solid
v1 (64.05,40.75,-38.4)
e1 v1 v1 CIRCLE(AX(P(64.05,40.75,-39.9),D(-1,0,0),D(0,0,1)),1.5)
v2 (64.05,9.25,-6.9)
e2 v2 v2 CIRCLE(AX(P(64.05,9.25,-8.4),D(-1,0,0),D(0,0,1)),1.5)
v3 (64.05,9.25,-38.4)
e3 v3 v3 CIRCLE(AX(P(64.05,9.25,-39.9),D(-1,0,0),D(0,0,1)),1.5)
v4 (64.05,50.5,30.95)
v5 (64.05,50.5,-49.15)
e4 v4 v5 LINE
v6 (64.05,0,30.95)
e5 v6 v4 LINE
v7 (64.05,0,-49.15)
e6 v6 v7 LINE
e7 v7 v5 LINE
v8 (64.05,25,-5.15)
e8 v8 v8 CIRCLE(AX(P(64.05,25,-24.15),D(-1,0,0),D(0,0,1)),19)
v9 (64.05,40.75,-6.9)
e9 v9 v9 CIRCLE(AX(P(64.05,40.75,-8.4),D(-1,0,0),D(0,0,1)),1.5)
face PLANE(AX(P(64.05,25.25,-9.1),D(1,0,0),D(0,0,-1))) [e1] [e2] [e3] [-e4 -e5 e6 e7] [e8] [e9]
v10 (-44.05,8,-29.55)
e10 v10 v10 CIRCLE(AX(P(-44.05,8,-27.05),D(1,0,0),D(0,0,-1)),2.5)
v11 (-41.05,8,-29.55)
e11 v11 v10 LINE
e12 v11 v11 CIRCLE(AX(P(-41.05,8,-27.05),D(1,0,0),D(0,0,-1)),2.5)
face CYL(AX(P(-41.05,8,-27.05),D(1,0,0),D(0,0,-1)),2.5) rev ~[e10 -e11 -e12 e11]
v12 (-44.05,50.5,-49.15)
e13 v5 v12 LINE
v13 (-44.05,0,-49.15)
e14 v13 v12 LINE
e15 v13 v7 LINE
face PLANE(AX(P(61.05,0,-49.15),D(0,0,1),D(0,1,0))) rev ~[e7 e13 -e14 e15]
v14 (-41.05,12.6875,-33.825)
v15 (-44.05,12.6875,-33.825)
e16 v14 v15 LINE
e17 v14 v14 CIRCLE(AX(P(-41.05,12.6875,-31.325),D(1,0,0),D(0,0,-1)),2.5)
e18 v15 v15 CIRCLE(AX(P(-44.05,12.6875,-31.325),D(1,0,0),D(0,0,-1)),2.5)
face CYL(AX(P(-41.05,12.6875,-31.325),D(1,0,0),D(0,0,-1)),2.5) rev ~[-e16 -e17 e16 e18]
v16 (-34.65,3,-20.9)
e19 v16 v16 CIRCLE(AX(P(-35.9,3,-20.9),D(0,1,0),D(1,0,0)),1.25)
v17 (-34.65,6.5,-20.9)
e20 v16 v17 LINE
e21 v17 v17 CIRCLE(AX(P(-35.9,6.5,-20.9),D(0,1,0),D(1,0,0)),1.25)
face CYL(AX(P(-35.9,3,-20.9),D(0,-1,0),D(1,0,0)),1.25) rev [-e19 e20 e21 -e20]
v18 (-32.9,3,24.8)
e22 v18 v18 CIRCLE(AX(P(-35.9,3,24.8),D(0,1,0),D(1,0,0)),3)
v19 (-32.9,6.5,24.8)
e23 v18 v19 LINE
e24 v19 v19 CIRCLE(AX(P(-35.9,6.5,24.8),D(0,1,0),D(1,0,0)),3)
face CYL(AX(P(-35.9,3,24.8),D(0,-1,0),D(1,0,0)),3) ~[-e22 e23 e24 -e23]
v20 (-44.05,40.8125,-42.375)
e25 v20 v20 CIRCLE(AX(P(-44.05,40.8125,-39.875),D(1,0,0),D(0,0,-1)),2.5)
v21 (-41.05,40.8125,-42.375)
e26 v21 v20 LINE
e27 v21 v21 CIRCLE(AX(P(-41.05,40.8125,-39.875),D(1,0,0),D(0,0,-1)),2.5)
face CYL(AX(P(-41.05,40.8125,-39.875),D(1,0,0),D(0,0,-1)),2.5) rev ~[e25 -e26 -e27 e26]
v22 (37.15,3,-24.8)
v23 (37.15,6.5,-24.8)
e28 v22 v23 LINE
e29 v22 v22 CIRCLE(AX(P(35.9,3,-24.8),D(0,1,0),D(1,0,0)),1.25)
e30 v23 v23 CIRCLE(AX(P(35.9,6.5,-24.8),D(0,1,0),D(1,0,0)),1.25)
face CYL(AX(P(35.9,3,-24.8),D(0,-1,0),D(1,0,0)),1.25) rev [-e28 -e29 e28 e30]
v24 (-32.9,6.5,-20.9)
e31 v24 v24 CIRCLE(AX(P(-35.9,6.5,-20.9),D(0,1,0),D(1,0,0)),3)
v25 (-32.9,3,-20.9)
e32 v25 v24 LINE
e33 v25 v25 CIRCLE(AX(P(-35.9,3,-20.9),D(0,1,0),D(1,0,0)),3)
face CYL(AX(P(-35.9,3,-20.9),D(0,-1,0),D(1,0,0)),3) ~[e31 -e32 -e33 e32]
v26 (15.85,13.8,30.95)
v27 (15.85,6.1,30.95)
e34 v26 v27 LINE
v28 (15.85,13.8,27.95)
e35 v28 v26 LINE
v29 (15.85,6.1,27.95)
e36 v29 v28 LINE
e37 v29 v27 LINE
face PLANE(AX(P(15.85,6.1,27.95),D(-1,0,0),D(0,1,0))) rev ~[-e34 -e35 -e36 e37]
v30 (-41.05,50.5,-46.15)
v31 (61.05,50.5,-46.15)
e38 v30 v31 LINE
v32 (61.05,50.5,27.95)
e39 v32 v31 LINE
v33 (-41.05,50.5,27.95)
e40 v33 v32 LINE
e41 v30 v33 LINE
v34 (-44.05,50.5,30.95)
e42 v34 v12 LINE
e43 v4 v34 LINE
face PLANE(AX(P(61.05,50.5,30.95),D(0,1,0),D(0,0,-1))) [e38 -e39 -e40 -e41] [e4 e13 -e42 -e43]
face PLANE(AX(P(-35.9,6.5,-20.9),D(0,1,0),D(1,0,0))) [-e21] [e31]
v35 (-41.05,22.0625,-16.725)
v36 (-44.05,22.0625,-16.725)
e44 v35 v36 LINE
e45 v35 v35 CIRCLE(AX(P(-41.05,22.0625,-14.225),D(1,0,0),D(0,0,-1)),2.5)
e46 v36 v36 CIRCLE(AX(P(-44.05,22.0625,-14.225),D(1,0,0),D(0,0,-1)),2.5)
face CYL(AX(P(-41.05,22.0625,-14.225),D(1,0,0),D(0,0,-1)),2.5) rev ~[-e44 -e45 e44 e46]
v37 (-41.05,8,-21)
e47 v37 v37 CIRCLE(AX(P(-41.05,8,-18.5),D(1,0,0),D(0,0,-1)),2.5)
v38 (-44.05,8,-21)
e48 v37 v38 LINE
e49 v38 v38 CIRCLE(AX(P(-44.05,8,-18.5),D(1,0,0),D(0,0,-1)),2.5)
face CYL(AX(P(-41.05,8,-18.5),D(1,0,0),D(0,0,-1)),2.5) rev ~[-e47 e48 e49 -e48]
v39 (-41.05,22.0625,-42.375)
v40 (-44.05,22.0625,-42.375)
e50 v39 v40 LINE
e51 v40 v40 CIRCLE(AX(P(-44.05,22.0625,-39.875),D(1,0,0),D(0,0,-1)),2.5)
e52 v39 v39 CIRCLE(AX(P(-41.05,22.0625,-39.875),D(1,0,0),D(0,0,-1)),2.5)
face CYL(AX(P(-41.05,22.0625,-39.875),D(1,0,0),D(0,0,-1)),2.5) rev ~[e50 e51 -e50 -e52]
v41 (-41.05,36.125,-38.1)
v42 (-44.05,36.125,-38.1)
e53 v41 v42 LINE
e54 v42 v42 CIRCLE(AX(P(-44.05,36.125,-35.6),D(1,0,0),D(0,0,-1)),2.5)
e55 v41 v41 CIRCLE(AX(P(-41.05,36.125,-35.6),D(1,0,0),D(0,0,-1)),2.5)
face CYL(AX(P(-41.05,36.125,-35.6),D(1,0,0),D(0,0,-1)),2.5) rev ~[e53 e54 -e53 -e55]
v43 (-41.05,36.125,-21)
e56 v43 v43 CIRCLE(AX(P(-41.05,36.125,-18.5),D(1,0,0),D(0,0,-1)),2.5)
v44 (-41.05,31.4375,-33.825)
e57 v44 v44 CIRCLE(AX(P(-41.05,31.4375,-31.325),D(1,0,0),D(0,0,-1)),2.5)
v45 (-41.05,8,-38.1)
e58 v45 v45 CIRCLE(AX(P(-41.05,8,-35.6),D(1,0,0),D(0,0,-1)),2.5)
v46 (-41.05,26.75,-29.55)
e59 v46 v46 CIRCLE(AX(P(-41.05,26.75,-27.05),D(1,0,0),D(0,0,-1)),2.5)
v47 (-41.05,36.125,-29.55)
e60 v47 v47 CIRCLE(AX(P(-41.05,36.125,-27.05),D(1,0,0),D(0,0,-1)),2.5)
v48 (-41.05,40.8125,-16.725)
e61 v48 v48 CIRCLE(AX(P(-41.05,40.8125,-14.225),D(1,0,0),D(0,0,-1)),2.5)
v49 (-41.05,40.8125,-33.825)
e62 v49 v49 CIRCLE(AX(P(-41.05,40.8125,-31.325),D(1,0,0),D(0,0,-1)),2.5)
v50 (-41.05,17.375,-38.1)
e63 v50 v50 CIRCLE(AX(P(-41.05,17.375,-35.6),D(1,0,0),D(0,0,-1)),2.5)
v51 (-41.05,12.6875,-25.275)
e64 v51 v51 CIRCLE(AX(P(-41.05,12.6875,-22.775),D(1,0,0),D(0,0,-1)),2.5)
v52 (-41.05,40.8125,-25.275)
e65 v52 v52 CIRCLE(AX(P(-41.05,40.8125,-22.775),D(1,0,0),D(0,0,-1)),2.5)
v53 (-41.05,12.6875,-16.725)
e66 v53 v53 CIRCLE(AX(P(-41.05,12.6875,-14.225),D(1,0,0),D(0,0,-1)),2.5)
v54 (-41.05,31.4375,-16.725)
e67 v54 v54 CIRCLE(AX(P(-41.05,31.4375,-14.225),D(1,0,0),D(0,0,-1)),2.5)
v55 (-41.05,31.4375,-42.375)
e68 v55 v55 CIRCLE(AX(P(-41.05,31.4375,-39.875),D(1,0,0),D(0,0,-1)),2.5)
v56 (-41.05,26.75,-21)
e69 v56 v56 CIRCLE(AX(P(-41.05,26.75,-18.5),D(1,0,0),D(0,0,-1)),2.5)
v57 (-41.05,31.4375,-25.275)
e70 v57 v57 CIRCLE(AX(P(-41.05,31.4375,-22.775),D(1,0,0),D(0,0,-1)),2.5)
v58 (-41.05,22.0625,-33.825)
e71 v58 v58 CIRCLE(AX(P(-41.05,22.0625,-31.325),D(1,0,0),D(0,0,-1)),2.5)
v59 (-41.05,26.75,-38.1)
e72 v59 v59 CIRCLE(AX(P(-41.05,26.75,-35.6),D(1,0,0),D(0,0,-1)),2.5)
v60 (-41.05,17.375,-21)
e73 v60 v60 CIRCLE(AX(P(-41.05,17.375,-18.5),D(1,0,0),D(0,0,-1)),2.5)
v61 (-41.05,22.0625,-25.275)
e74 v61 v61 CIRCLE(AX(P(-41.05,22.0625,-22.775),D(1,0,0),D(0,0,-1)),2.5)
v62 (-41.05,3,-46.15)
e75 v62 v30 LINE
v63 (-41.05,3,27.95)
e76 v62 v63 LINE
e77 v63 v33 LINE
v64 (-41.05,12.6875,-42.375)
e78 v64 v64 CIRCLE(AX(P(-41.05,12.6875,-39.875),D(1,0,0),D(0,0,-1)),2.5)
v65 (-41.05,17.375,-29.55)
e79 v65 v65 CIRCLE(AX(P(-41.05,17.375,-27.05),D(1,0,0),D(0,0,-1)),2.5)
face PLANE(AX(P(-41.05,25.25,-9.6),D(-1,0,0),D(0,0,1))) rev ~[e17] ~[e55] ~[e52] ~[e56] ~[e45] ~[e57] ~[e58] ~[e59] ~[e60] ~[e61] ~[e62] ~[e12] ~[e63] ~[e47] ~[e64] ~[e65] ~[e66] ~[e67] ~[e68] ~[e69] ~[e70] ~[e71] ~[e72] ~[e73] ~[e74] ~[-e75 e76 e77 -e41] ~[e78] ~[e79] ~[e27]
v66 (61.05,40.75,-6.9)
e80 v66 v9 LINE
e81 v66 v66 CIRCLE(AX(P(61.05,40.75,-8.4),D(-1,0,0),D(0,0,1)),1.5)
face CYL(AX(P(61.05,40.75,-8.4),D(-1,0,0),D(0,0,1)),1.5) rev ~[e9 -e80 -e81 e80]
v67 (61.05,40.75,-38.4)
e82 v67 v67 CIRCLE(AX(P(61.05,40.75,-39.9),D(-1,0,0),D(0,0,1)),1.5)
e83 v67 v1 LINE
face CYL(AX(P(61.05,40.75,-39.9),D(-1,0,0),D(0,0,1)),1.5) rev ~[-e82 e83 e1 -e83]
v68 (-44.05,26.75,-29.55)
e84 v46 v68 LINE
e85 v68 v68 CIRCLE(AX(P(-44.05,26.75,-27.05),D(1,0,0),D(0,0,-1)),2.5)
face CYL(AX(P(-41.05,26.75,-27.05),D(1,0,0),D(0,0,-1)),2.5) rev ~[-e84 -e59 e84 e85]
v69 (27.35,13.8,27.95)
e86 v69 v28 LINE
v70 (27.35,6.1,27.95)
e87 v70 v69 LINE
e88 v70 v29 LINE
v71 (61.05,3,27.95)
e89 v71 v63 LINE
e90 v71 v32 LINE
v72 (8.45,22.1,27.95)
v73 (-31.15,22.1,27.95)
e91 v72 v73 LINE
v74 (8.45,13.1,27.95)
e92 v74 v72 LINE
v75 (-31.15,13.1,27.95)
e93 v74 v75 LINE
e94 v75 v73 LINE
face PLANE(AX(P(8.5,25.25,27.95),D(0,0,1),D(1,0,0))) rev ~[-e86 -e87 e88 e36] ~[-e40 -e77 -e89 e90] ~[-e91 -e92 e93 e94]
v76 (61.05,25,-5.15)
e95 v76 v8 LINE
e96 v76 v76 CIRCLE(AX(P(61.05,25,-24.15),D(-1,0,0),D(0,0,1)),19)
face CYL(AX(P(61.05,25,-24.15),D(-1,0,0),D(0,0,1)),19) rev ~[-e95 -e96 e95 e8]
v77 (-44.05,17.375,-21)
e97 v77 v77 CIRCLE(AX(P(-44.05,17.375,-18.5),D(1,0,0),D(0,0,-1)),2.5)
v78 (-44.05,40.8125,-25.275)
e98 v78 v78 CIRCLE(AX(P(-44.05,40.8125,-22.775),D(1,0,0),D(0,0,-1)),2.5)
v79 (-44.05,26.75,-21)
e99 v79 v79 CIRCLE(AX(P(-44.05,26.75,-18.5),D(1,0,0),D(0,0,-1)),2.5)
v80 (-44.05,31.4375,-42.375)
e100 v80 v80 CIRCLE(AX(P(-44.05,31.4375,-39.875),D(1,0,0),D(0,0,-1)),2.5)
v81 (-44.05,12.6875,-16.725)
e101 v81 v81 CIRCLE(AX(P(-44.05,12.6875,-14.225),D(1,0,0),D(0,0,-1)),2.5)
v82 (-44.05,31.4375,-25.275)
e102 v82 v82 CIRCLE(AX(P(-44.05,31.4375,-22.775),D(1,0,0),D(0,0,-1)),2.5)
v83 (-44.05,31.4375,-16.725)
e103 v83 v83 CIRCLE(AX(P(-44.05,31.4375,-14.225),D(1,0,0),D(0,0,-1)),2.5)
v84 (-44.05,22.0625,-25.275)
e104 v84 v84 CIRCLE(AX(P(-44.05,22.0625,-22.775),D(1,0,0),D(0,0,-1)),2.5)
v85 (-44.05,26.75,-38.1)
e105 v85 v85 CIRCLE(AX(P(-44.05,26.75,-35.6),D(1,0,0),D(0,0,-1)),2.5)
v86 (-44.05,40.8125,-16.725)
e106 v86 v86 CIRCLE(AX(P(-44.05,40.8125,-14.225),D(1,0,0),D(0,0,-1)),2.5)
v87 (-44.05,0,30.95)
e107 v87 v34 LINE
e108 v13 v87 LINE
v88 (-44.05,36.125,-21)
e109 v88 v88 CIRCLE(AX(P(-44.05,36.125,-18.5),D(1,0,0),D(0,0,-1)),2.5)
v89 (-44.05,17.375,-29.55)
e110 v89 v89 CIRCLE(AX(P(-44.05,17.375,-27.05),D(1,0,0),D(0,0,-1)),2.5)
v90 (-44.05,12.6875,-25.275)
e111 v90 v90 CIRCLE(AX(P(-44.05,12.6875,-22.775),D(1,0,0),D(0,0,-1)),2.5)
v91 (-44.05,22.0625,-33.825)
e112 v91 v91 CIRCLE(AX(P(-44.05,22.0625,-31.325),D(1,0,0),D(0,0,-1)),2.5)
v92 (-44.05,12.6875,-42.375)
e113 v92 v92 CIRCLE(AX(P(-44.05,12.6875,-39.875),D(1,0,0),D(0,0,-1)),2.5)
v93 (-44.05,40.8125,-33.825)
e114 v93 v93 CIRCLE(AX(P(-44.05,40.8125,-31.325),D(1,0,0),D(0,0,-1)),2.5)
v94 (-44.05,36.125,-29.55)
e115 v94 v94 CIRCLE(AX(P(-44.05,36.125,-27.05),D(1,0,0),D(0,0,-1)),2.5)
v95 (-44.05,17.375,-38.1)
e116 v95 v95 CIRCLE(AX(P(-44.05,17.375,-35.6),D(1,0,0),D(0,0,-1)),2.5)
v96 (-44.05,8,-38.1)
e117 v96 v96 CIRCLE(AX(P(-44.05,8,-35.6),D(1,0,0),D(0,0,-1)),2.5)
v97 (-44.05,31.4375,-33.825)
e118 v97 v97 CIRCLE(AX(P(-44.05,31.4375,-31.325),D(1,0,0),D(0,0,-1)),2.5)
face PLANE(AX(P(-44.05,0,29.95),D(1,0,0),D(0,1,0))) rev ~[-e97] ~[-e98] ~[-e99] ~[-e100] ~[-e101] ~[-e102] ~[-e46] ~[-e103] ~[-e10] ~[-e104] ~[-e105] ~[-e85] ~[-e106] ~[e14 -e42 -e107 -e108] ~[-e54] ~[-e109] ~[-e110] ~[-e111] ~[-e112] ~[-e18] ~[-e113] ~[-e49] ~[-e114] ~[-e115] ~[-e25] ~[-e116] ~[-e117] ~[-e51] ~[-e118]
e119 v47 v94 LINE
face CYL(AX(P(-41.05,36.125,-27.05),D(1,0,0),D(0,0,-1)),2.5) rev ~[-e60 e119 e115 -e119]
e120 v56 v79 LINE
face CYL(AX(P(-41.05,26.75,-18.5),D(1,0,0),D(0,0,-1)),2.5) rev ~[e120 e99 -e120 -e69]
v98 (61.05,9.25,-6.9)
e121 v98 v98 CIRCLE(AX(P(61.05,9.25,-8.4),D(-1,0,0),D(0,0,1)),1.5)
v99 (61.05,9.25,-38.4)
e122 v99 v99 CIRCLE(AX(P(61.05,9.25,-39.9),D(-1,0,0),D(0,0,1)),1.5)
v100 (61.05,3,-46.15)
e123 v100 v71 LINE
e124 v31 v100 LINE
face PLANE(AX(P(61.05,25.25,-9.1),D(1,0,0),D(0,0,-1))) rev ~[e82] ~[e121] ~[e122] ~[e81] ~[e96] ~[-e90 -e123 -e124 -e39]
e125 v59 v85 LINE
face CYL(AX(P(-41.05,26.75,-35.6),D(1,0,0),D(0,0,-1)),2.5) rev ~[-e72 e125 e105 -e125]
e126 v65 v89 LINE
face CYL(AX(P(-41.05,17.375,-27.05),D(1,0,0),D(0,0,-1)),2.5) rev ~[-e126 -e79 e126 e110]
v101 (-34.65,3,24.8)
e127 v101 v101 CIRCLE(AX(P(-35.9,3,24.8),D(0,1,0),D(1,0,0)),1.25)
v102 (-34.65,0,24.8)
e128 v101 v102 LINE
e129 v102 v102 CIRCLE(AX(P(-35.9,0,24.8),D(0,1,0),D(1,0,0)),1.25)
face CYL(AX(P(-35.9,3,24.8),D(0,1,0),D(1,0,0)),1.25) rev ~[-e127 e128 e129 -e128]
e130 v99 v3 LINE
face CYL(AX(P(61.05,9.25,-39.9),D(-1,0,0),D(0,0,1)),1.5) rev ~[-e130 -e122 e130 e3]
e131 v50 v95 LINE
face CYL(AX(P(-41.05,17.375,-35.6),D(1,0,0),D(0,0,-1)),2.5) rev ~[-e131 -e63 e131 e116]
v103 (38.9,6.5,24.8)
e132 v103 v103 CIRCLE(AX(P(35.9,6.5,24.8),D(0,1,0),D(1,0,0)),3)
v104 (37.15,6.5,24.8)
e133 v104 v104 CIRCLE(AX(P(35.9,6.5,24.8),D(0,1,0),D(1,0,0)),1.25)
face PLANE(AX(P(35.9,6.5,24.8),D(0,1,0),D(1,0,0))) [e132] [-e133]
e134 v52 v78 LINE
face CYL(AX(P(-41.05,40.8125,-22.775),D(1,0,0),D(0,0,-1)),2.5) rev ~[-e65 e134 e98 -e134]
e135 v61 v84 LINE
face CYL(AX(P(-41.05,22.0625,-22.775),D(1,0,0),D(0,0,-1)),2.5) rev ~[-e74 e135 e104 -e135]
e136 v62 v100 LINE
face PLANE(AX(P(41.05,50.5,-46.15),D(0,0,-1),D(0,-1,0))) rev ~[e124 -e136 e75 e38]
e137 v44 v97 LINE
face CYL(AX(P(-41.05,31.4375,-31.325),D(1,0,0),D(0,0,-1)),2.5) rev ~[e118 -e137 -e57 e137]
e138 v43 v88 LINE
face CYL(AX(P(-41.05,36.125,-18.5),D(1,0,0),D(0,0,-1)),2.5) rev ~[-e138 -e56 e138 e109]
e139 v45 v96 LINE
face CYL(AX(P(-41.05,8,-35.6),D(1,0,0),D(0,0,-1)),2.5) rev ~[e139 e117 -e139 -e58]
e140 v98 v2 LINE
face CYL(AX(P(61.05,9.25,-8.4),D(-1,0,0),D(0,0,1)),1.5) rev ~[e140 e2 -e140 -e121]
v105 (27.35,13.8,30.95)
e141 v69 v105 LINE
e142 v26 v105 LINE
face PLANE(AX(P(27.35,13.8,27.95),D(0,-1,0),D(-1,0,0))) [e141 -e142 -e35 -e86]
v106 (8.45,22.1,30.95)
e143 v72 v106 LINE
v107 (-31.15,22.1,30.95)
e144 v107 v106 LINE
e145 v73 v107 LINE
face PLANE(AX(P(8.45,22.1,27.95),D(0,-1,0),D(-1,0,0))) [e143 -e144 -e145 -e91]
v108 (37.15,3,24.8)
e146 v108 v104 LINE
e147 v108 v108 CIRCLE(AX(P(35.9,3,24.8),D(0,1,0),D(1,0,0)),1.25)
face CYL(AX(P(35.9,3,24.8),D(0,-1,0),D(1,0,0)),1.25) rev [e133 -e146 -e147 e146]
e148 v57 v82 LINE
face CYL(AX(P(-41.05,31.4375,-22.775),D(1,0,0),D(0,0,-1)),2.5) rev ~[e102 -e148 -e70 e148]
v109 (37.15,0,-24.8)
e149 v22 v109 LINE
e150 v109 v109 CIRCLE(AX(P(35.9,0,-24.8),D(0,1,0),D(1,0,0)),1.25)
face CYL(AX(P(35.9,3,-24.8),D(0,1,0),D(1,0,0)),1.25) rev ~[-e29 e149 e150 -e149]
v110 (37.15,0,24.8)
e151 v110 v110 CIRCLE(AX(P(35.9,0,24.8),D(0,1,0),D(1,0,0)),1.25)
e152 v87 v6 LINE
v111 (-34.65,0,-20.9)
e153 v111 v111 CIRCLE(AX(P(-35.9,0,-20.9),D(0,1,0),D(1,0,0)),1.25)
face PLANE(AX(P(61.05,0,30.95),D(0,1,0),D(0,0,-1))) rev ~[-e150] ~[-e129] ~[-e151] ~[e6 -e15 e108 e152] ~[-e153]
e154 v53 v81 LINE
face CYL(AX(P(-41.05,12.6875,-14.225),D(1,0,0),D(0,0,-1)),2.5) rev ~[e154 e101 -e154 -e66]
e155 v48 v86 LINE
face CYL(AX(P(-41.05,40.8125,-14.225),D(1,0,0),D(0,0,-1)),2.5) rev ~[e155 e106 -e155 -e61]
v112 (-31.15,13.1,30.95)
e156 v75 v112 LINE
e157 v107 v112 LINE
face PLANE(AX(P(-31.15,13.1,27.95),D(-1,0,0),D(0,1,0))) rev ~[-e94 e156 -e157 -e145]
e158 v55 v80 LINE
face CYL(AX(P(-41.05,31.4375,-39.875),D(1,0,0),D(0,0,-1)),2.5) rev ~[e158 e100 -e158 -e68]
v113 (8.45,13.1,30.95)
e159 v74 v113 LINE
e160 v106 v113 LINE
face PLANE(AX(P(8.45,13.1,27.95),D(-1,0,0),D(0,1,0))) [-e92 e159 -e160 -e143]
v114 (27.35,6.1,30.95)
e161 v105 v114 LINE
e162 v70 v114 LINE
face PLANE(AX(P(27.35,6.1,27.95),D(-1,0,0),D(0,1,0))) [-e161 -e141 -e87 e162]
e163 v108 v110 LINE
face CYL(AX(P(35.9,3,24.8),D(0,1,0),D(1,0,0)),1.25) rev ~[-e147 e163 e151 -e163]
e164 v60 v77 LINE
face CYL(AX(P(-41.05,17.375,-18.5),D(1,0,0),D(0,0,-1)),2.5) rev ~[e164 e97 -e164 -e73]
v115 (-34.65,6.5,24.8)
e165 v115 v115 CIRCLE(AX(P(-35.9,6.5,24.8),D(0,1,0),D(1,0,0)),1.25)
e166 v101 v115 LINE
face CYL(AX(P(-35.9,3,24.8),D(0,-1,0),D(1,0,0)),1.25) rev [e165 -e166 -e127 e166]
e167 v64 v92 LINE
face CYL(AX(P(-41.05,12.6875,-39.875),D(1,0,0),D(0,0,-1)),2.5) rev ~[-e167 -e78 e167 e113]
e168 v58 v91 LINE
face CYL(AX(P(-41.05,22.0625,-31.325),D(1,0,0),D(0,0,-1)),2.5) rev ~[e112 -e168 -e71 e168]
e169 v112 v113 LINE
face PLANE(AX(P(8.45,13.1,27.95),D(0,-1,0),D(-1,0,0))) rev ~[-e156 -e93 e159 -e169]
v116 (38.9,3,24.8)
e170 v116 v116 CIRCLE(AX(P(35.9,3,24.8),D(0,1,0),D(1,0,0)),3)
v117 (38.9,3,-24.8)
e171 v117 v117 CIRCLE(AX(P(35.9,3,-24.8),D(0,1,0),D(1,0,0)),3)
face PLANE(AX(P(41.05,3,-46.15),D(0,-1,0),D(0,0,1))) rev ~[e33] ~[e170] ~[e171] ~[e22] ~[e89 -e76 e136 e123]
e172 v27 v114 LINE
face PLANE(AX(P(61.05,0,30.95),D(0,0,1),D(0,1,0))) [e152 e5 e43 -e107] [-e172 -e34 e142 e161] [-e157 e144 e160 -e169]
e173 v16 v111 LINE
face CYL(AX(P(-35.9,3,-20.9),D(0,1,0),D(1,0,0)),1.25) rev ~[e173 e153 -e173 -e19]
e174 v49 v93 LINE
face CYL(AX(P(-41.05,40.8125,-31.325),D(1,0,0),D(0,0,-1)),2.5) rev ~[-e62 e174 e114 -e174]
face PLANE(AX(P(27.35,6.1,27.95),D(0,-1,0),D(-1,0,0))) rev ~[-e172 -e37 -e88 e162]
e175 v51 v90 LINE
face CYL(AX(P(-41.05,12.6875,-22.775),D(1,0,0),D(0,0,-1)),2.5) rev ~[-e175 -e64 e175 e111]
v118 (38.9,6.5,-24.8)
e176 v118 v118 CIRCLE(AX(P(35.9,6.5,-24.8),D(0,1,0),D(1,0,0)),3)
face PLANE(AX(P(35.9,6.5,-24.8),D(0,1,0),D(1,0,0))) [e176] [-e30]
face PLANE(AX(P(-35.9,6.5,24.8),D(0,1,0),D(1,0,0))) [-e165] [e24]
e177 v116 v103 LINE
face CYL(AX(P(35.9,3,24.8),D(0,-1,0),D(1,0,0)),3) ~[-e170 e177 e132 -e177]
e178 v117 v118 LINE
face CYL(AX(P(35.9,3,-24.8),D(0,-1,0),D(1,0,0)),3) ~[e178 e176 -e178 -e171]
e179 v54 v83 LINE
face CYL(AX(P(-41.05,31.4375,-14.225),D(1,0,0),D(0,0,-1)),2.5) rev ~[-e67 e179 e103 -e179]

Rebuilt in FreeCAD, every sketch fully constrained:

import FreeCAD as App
import Part
import Sketcher


def add_polygon(sketch, points):
    """Adds a closed chain of lines whose ends are joined by coincident constraints."""
    first, n = sketch.GeometryCount, len(points)
    for a, b in zip(points, points[1:] + points[:1]):
        sketch.addGeometry(Part.LineSegment(App.Vector(*a, 0), App.Vector(*b, 0)), False)
    for i in range(n):
        sketch.addConstraint(Sketcher.Constraint("Coincident", first + i, 2, first + (i + 1) % n, 1))

doc = App.newDocument("Part")
body = doc.addObject("PartDesign::Body", "Body")

# Sketch on XZ plane
sketch1 = body.newObject("Sketcher::SketchObject", "Sketch")
sketch1.AttachmentSupport = (doc.getObject("XZ_Plane"), [""])
sketch1.MapMode = "FlatFace"
add_polygon(sketch1, [(-39, -28), (-39, 28), (39, 28), (39, -28)])  # lines 0-3
sketch1.addConstraint(Sketcher.Constraint("Vertical", 0))
sketch1.addConstraint(Sketcher.Constraint("Horizontal", 1))
sketch1.addConstraint(Sketcher.Constraint("Vertical", 2))
sketch1.addConstraint(Sketcher.Constraint("Horizontal", 3))
sketch1.addConstraint(Sketcher.Constraint("Symmetric", 0, 2, 2, 2, -1, 1))
sketch1.addConstraint(Sketcher.Constraint("DistanceX", 1, 1, 1, 2, 78.1))
sketch1.addConstraint(Sketcher.Constraint("DistanceY", 0, 1, 0, 2, 55.9))
pad1 = body.newObject("PartDesign::Pad", "Pad")
pad1.Profile = sketch1
pad1.Length = 3
pad1.Reversed = True

# Sketch on XZ plane
sketch2 = body.newObject("Sketcher::SketchObject", "Sketch001")
sketch2.AttachmentSupport = (doc.getObject("XZ_Plane"), [""])
sketch2.MapMode = "FlatFace"
sketch2.AttachmentOffset = App.Placement(App.Vector(0, 0, -3), App.Rotation())
sketch2.addGeometry(Part.Circle(App.Vector(-35.9, -20.9, 0), App.Vector(0, 0, 1), 1.2), False)
sketch2.addGeometry(Part.Circle(App.Vector(-35.9, 24.8, 0), App.Vector(0, 0, 1), 1.2), False)
sketch2.addGeometry(Part.Circle(App.Vector(35.9, 24.8, 0), App.Vector(0, 0, 1), 1.2), False)
sketch2.addGeometry(Part.Circle(App.Vector(35.9, -24.8, 0), App.Vector(0, 0, 1), 1.2), False)
sketch2.addConstraint(Sketcher.Constraint("Equal", 0, 1))
sketch2.addConstraint(Sketcher.Constraint("Equal", 1, 2))
sketch2.addConstraint(Sketcher.Constraint("Equal", 2, 3))
sketch2.addConstraint(Sketcher.Constraint("Symmetric", 1, 3, 3, 3, -1, 1))
sketch2.addConstraint(Sketcher.Constraint("Symmetric", 1, 3, 2, 3, -2))
sketch2.addConstraint(Sketcher.Constraint("Vertical", 0, 3, 1, 3))
sketch2.addConstraint(Sketcher.Constraint("Diameter", 0, 2.5))
sketch2.addConstraint(Sketcher.Constraint("DistanceX", 0, 3, -1, 1, 35.9))
sketch2.addConstraint(Sketcher.Constraint("DistanceY", 0, 3, -1, 1, 20.9))
sketch2.addConstraint(Sketcher.Constraint("DistanceY", -1, 1, 1, 3, 24.8))
pocket1 = body.newObject("PartDesign::Pocket", "Pocket")
pocket1.Profile = sketch2
pocket1.Length = 68
pocket1.Reversed = True

# Sketch on XZ plane
sketch3 = body.newObject("Sketcher::SketchObject", "Sketch002")
sketch3.AttachmentSupport = (doc.getObject("XZ_Plane"), [""])
sketch3.MapMode = "FlatFace"
add_polygon(sketch3, [(41, -30), (41, 30), (-41, 30), (-41, -30)])  # lines 0-3
add_polygon(sketch3, [(-39, 28), (39, 28), (39, -28), (-39, -28)])  # lines 4-7
sketch3.addConstraint(Sketcher.Constraint("Vertical", 0))
sketch3.addConstraint(Sketcher.Constraint("Horizontal", 1))
sketch3.addConstraint(Sketcher.Constraint("Vertical", 2))
sketch3.addConstraint(Sketcher.Constraint("Horizontal", 3))
sketch3.addConstraint(Sketcher.Constraint("Horizontal", 4))
sketch3.addConstraint(Sketcher.Constraint("Vertical", 5))
sketch3.addConstraint(Sketcher.Constraint("Horizontal", 6))
sketch3.addConstraint(Sketcher.Constraint("Vertical", 7))
sketch3.addConstraint(Sketcher.Constraint("Symmetric", 0, 2, 2, 2, -1, 1))
sketch3.addConstraint(Sketcher.Constraint("Symmetric", 4, 2, 6, 2, -1, 1))
sketch3.addConstraint(Sketcher.Constraint("DistanceX", 1, 2, 1, 1, 82.1))
sketch3.addConstraint(Sketcher.Constraint("DistanceX", 4, 1, 4, 2, 78.1))
sketch3.addConstraint(Sketcher.Constraint("DistanceY", 0, 1, 0, 2, 59.9))
sketch3.addConstraint(Sketcher.Constraint("DistanceY", 5, 2, 5, 1, 55.9))
pad2 = body.newObject("PartDesign::Pad", "Pad001")
pad2.Profile = sketch3
pad2.Length = 3
pad2.Reversed = True

# Sketch on XZ plane
sketch4 = body.newObject("Sketcher::SketchObject", "Sketch003")
sketch4.AttachmentSupport = (doc.getObject("XZ_Plane"), [""])
sketch4.MapMode = "FlatFace"
sketch4.AttachmentOffset = App.Placement(App.Vector(0, 0, -3), App.Rotation())
sketch4.addGeometry(Part.Circle(App.Vector(-35.9, -20.9, 0), App.Vector(0, 0, 1), 3), False)
sketch4.addGeometry(Part.Circle(App.Vector(-35.9, -20.9, 0), App.Vector(0, 0, 1), 1.2), False)
sketch4.addGeometry(Part.Circle(App.Vector(35.9, -24.8, 0), App.Vector(0, 0, 1), 3), False)
sketch4.addGeometry(Part.Circle(App.Vector(35.9, -24.8, 0), App.Vector(0, 0, 1), 1.2), False)
sketch4.addGeometry(Part.Circle(App.Vector(35.9, 24.8, 0), App.Vector(0, 0, 1), 3), False)
sketch4.addGeometry(Part.Circle(App.Vector(35.9, 24.8, 0), App.Vector(0, 0, 1), 1.2), False)
sketch4.addGeometry(Part.Circle(App.Vector(-35.9, 24.8, 0), App.Vector(0, 0, 1), 3), False)
sketch4.addGeometry(Part.Circle(App.Vector(-35.9, 24.8, 0), App.Vector(0, 0, 1), 1.2), False)
sketch4.addConstraint(Sketcher.Constraint("Coincident", 1, 3, 0, 3))
sketch4.addConstraint(Sketcher.Constraint("Coincident", 3, 3, 2, 3))
sketch4.addConstraint(Sketcher.Constraint("Coincident", 5, 3, 4, 3))
sketch4.addConstraint(Sketcher.Constraint("Coincident", 7, 3, 6, 3))
sketch4.addConstraint(Sketcher.Constraint("Equal", 0, 2))
sketch4.addConstraint(Sketcher.Constraint("Equal", 1, 3))
sketch4.addConstraint(Sketcher.Constraint("Equal", 2, 4))
sketch4.addConstraint(Sketcher.Constraint("Equal", 3, 5))
sketch4.addConstraint(Sketcher.Constraint("Equal", 4, 6))
sketch4.addConstraint(Sketcher.Constraint("Equal", 5, 7))
sketch4.addConstraint(Sketcher.Constraint("Symmetric", 2, 3, 6, 3, -1, 1))
sketch4.addConstraint(Sketcher.Constraint("Symmetric", 4, 3, 6, 3, -2))
sketch4.addConstraint(Sketcher.Constraint("Vertical", 1, 3, 6, 3))
sketch4.addConstraint(Sketcher.Constraint("Diameter", 0, 6.0))
sketch4.addConstraint(Sketcher.Constraint("Diameter", 1, 2.5))
sketch4.addConstraint(Sketcher.Constraint("DistanceX", 0, 3, -1, 1, 35.9))
sketch4.addConstraint(Sketcher.Constraint("DistanceY", 0, 3, -1, 1, 20.9))
sketch4.addConstraint(Sketcher.Constraint("DistanceY", 2, 3, -1, 1, 24.8))
pad3 = body.newObject("PartDesign::Pad", "Pad002")
pad3.Profile = sketch4
pad3.Length = 3.5
pad3.Reversed = True

# Sketch on XZ plane
sketch5 = body.newObject("Sketcher::SketchObject", "Sketch004")
sketch5.AttachmentSupport = (doc.getObject("XZ_Plane"), [""])
sketch5.MapMode = "FlatFace"
add_polygon(sketch5, [(41, -46), (41, -30), (-41, -30), (-41, -46)])  # lines 0-3
sketch5.addConstraint(Sketcher.Constraint("Vertical", 0))
sketch5.addConstraint(Sketcher.Constraint("Horizontal", 1))
sketch5.addConstraint(Sketcher.Constraint("Vertical", 2))
sketch5.addConstraint(Sketcher.Constraint("Horizontal", 3))
sketch5.addConstraint(Sketcher.Constraint("DistanceX", 1, 2, 1, 1, 82.1))
sketch5.addConstraint(Sketcher.Constraint("DistanceY", 0, 1, 0, 2, 16.2))
sketch5.addConstraint(Sketcher.Constraint("DistanceX", -1, 1, 0, 2, 41.05))
sketch5.addConstraint(Sketcher.Constraint("DistanceY", 0, 2, -1, 1, 29.95))
pad4 = body.newObject("PartDesign::Pad", "Pad003")
pad4.Profile = sketch5
pad4.Length = 3
pad4.Reversed = True

# Sketch on XY plane
sketch6 = body.newObject("Sketcher::SketchObject", "Sketch005")
sketch6.AttachmentSupport = (doc.getObject("XY_Plane"), [""])
sketch6.MapMode = "FlatFace"
sketch6.AttachmentOffset = App.Placement(App.Vector(0, 0, -46.15), App.Rotation())
add_polygon(sketch6, [(41, 50), (41, 0), (-41, 0), (-41, 50)])  # lines 0-3
sketch6.addConstraint(Sketcher.Constraint("Vertical", 0))
sketch6.addConstraint(Sketcher.Constraint("Horizontal", 1))
sketch6.addConstraint(Sketcher.Constraint("Vertical", 2))
sketch6.addConstraint(Sketcher.Constraint("Horizontal", 3))
sketch6.addConstraint(Sketcher.Constraint("Symmetric", 0, 2, 1, 2, -1, 1))
sketch6.addConstraint(Sketcher.Constraint("DistanceX", 1, 2, 1, 1, 82.1))
sketch6.addConstraint(Sketcher.Constraint("DistanceY", 0, 2, 0, 1, 50.5))
pad5 = body.newObject("PartDesign::Pad", "Pad004")
pad5.Profile = sketch6
pad5.Length = 3
pad5.Reversed = True

# Sketch on YZ plane
sketch7 = body.newObject("Sketcher::SketchObject", "Sketch006")
sketch7.AttachmentSupport = (doc.getObject("YZ_Plane"), [""])
sketch7.MapMode = "FlatFace"
sketch7.AttachmentOffset = App.Placement(App.Vector(0, 0, 41.05), App.Rotation())
add_polygon(sketch7, [(50.5, -49.1), (50.5, -46.1), (3, -46.1), (3, 29.9), (0, 29.9), (0, -49.1)])  # lines 0-5
sketch7.addConstraint(Sketcher.Constraint("Vertical", 0))
sketch7.addConstraint(Sketcher.Constraint("Horizontal", 1))
sketch7.addConstraint(Sketcher.Constraint("Vertical", 2))
sketch7.addConstraint(Sketcher.Constraint("Horizontal", 3))
sketch7.addConstraint(Sketcher.Constraint("Vertical", 4))
sketch7.addConstraint(Sketcher.Constraint("Horizontal", 5))
sketch7.addConstraint(Sketcher.Constraint("PointOnObject", 3, 2, -2))
sketch7.addConstraint(Sketcher.Constraint("Equal", 3, 0))
sketch7.addConstraint(Sketcher.Constraint("DistanceX", 3, 2, 3, 1, 3.0))
sketch7.addConstraint(Sketcher.Constraint("DistanceX", 1, 2, 1, 1, 47.5))
sketch7.addConstraint(Sketcher.Constraint("DistanceY", 2, 1, 2, 2, 76.1))
sketch7.addConstraint(Sketcher.Constraint("DistanceY", 0, 2, -1, 1, 46.15))
pad6 = body.newObject("PartDesign::Pad", "Pad005")
pad6.Profile = sketch7
pad6.Length = 20

# Sketch on YZ plane
sketch8 = body.newObject("Sketcher::SketchObject", "Sketch007")
sketch8.AttachmentSupport = (doc.getObject("YZ_Plane"), [""])
sketch8.MapMode = "FlatFace"
sketch8.AttachmentOffset = App.Placement(App.Vector(0, 0, -41.05), App.Rotation())
add_polygon(sketch8, [(50, -49), (0, -49), (0, 30), (50, 30)])  # lines 0-3
sketch8.addConstraint(Sketcher.Constraint("Horizontal", 0))
sketch8.addConstraint(Sketcher.Constraint("Vertical", 1))
sketch8.addConstraint(Sketcher.Constraint("Horizontal", 2))
sketch8.addConstraint(Sketcher.Constraint("Vertical", 3))
sketch8.addConstraint(Sketcher.Constraint("PointOnObject", 0, 2, -2))
sketch8.addConstraint(Sketcher.Constraint("DistanceX", 0, 2, 0, 1, 50.5))
sketch8.addConstraint(Sketcher.Constraint("DistanceY", 1, 1, 1, 2, 79.1))
sketch8.addConstraint(Sketcher.Constraint("DistanceY", 0, 2, -1, 1, 49.15))
pad7 = body.newObject("PartDesign::Pad", "Pad006")
pad7.Profile = sketch8
pad7.Length = 3
pad7.Reversed = True

# Sketch on XY plane
sketch9 = body.newObject("Sketcher::SketchObject", "Sketch008")
sketch9.AttachmentSupport = (doc.getObject("XY_Plane"), [""])
sketch9.MapMode = "FlatFace"
sketch9.AttachmentOffset = App.Placement(App.Vector(0, 0, 29.95), App.Rotation())
add_polygon(sketch9, [(-44, 50), (-44, 0), (61, 0), (61, 50)])  # lines 0-3
sketch9.addConstraint(Sketcher.Constraint("Vertical", 0))
sketch9.addConstraint(Sketcher.Constraint("Horizontal", 1))
sketch9.addConstraint(Sketcher.Constraint("Vertical", 2))
sketch9.addConstraint(Sketcher.Constraint("Horizontal", 3))
sketch9.addConstraint(Sketcher.Constraint("PointOnObject", 0, 2, -1))
sketch9.addConstraint(Sketcher.Constraint("DistanceX", 1, 1, 1, 2, 105.1))
sketch9.addConstraint(Sketcher.Constraint("DistanceY", 0, 2, 0, 1, 50.5))
sketch9.addConstraint(Sketcher.Constraint("DistanceX", 0, 2, -1, 1, 44.05))
pad8 = body.newObject("PartDesign::Pad", "Pad007")
pad8.Profile = sketch9
pad8.Type = "TwoLengths"
pad8.Length = 1
pad8.Length2 = 2

# Sketch on XY plane
sketch10 = body.newObject("Sketcher::SketchObject", "Sketch009")
sketch10.AttachmentSupport = (doc.getObject("XY_Plane"), [""])
sketch10.MapMode = "FlatFace"
sketch10.AttachmentOffset = App.Placement(App.Vector(0, 0, 27.95), App.Rotation())
add_polygon(sketch10, [(27, 14), (27, 6), (16, 6), (16, 14)])  # lines 0-3
add_polygon(sketch10, [(8, 22), (8, 13), (-31, 13), (-31, 22)])  # lines 4-7
sketch10.addConstraint(Sketcher.Constraint("Vertical", 0))
sketch10.addConstraint(Sketcher.Constraint("Horizontal", 1))
sketch10.addConstraint(Sketcher.Constraint("Vertical", 2))
sketch10.addConstraint(Sketcher.Constraint("Horizontal", 3))
sketch10.addConstraint(Sketcher.Constraint("Vertical", 4))
sketch10.addConstraint(Sketcher.Constraint("Horizontal", 5))
sketch10.addConstraint(Sketcher.Constraint("Vertical", 6))
sketch10.addConstraint(Sketcher.Constraint("Horizontal", 7))
sketch10.addConstraint(Sketcher.Constraint("DistanceY", 4, 2, 4, 1, 9.0))
sketch10.addConstraint(Sketcher.Constraint("DistanceX", 1, 2, 1, 1, 11.5))
sketch10.addConstraint(Sketcher.Constraint("DistanceX", 5, 2, 5, 1, 39.6))
sketch10.addConstraint(Sketcher.Constraint("DistanceY", 0, 2, 0, 1, 7.7))
sketch10.addConstraint(Sketcher.Constraint("DistanceY", 1, 2, 4, 2, 7.0))
sketch10.addConstraint(Sketcher.Constraint("DistanceX", 5, 2, 2, 2, 47.0))
sketch10.addConstraint(Sketcher.Constraint("DistanceY", -1, 1, 0, 2, 6.1))
sketch10.addConstraint(Sketcher.Constraint("DistanceX", -1, 1, 0, 2, 27.35))
pocket2 = body.newObject("PartDesign::Pocket", "Pocket001")
pocket2.Profile = sketch10
pocket2.Length = 9
pocket2.Reversed = True

# Sketch on YZ plane
sketch11 = body.newObject("Sketcher::SketchObject", "Sketch010")
sketch11.AttachmentSupport = (doc.getObject("YZ_Plane"), [""])
sketch11.MapMode = "FlatFace"
sketch11.AttachmentOffset = App.Placement(App.Vector(0, 0, 61.05), App.Rotation())
add_polygon(sketch11, [(50, 31), (0, 31), (0, -49), (50, -49)])  # lines 0-3
sketch11.addConstraint(Sketcher.Constraint("Horizontal", 0))
sketch11.addConstraint(Sketcher.Constraint("Vertical", 1))
sketch11.addConstraint(Sketcher.Constraint("Horizontal", 2))
sketch11.addConstraint(Sketcher.Constraint("Vertical", 3))
sketch11.addConstraint(Sketcher.Constraint("PointOnObject", 0, 2, -2))
sketch11.addConstraint(Sketcher.Constraint("DistanceX", 0, 2, 0, 1, 50.5))
sketch11.addConstraint(Sketcher.Constraint("DistanceY", 1, 2, 1, 1, 80.1))
sketch11.addConstraint(Sketcher.Constraint("DistanceY", -1, 1, 0, 2, 30.95))
pad9 = body.newObject("PartDesign::Pad", "Pad008")
pad9.Profile = sketch11
pad9.Length = 3

# Sketch on YZ plane
sketch12 = body.newObject("Sketcher::SketchObject", "Sketch011")
sketch12.AttachmentSupport = (doc.getObject("YZ_Plane"), [""])
sketch12.MapMode = "FlatFace"
sketch12.AttachmentOffset = App.Placement(App.Vector(0, 0, 61.05), App.Rotation())
sketch12.addGeometry(Part.Circle(App.Vector(25, -24.1, 0), App.Vector(0, 0, 1), 19), False)
sketch12.addGeometry(Part.Circle(App.Vector(40.8, -8.4, 0), App.Vector(0, 0, 1), 1.5), False)
sketch12.addGeometry(Part.Circle(App.Vector(40.8, -39.9, 0), App.Vector(0, 0, 1), 1.5), False)
sketch12.addGeometry(Part.Circle(App.Vector(9.2, -8.4, 0), App.Vector(0, 0, 1), 1.5), False)
sketch12.addGeometry(Part.Circle(App.Vector(9.2, -39.9, 0), App.Vector(0, 0, 1), 1.5), False)
sketch12.addConstraint(Sketcher.Constraint("Equal", 1, 2))
sketch12.addConstraint(Sketcher.Constraint("Equal", 2, 3))
sketch12.addConstraint(Sketcher.Constraint("Equal", 3, 4))
sketch12.addConstraint(Sketcher.Constraint("Horizontal", 1, 3, 3, 3))
sketch12.addConstraint(Sketcher.Constraint("Horizontal", 2, 3, 4, 3))
sketch12.addConstraint(Sketcher.Constraint("Vertical", 1, 3, 2, 3))
sketch12.addConstraint(Sketcher.Constraint("Vertical", 3, 3, 4, 3))
sketch12.addConstraint(Sketcher.Constraint("Diameter", 0, 38.0))
sketch12.addConstraint(Sketcher.Constraint("Diameter", 1, 3.0))
sketch12.addConstraint(Sketcher.Constraint("DistanceX", -1, 1, 0, 3, 25.0))
sketch12.addConstraint(Sketcher.Constraint("DistanceY", 1, 3, -1, 1, 8.4))
sketch12.addConstraint(Sketcher.Constraint("DistanceY", 2, 3, -1, 1, 39.9))
sketch12.addConstraint(Sketcher.Constraint("DistanceX", 3, 3, 1, 3, 31.5))
sketch12.addConstraint(Sketcher.Constraint("DistanceY", 0, 3, -1, 1, 24.15))
sketch12.addConstraint(Sketcher.Constraint("DistanceX", -1, 1, 1, 3, 40.75))
pocket3 = body.newObject("PartDesign::Pocket", "Pocket002")
pocket3.Profile = sketch12
pocket3.Length = 3
pocket3.Reversed = True

# Sketch on YZ plane
sketch13 = body.newObject("Sketcher::SketchObject", "Sketch012")
sketch13.AttachmentSupport = (doc.getObject("YZ_Plane"), [""])
sketch13.MapMode = "FlatFace"
sketch13.AttachmentOffset = App.Placement(App.Vector(0, 0, -41.05), App.Rotation())
sketch13.addGeometry(Part.Circle(App.Vector(12.7, -14.2, 0), App.Vector(0, 0, 1), 2.5), False)
sketch13.addGeometry(Part.Circle(App.Vector(22.1, -14.2, 0), App.Vector(0, 0, 1), 2.5), False)
sketch13.addGeometry(Part.Circle(App.Vector(17.4, -18.5, 0), App.Vector(0, 0, 1), 2.5), False)
sketch13.addGeometry(Part.Circle(App.Vector(22.1, -22.8, 0), App.Vector(0, 0, 1), 2.5), False)
sketch13.addGeometry(Part.Circle(App.Vector(12.7, -22.8, 0), App.Vector(0, 0, 1), 2.5), False)
sketch13.addGeometry(Part.Circle(App.Vector(31.4, -14.2, 0), App.Vector(0, 0, 1), 2.5), False)
sketch13.addGeometry(Part.Circle(App.Vector(26.8, -18.5, 0), App.Vector(0, 0, 1), 2.5), False)
sketch13.addGeometry(Part.Circle(App.Vector(31.4, -22.8, 0), App.Vector(0, 0, 1), 2.5), False)
sketch13.addGeometry(Part.Circle(App.Vector(36.1, -18.5, 0), App.Vector(0, 0, 1), 2.5), False)
sketch13.addGeometry(Part.Circle(App.Vector(40.8, -14.2, 0), App.Vector(0, 0, 1), 2.5), False)
sketch13.addGeometry(Part.Circle(App.Vector(40.8, -22.8, 0), App.Vector(0, 0, 1), 2.5), False)
sketch13.addGeometry(Part.Circle(App.Vector(36.1, -27.1, 0), App.Vector(0, 0, 1), 2.5), False)
sketch13.addGeometry(Part.Circle(App.Vector(40.8, -31.3, 0), App.Vector(0, 0, 1), 2.5), False)
sketch13.addGeometry(Part.Circle(App.Vector(40.8, -39.9, 0), App.Vector(0, 0, 1), 2.5), False)
sketch13.addGeometry(Part.Circle(App.Vector(36.1, -35.6, 0), App.Vector(0, 0, 1), 2.5), False)
sketch13.addGeometry(Part.Circle(App.Vector(31.4, -39.9, 0), App.Vector(0, 0, 1), 2.5), False)
sketch13.addGeometry(Part.Circle(App.Vector(31.4, -31.3, 0), App.Vector(0, 0, 1), 2.5), False)
sketch13.addGeometry(Part.Circle(App.Vector(26.8, -27.1, 0), App.Vector(0, 0, 1), 2.5), False)
sketch13.addGeometry(Part.Circle(App.Vector(22.1, -31.3, 0), App.Vector(0, 0, 1), 2.5), False)
sketch13.addGeometry(Part.Circle(App.Vector(22.1, -39.9, 0), App.Vector(0, 0, 1), 2.5), False)
sketch13.addGeometry(Part.Circle(App.Vector(26.8, -35.6, 0), App.Vector(0, 0, 1), 2.5), False)
sketch13.addGeometry(Part.Circle(App.Vector(17.4, -27.1, 0), App.Vector(0, 0, 1), 2.5), False)
sketch13.addGeometry(Part.Circle(App.Vector(12.7, -31.3, 0), App.Vector(0, 0, 1), 2.5), False)
sketch13.addGeometry(Part.Circle(App.Vector(12.7, -39.9, 0), App.Vector(0, 0, 1), 2.5), False)
sketch13.addGeometry(Part.Circle(App.Vector(17.4, -35.6, 0), App.Vector(0, 0, 1), 2.5), False)
sketch13.addGeometry(Part.Circle(App.Vector(8, -18.5, 0), App.Vector(0, 0, 1), 2.5), False)
sketch13.addGeometry(Part.Circle(App.Vector(8, -27.1, 0), App.Vector(0, 0, 1), 2.5), False)
sketch13.addGeometry(Part.Circle(App.Vector(8, -35.6, 0), App.Vector(0, 0, 1), 2.5), False)
sketch13.addConstraint(Sketcher.Constraint("Equal", 0, 1))
sketch13.addConstraint(Sketcher.Constraint("Equal", 1, 2))
sketch13.addConstraint(Sketcher.Constraint("Equal", 2, 3))
sketch13.addConstraint(Sketcher.Constraint("Equal", 3, 4))
sketch13.addConstraint(Sketcher.Constraint("Equal", 4, 5))
sketch13.addConstraint(Sketcher.Constraint("Equal", 5, 6))
sketch13.addConstraint(Sketcher.Constraint("Equal", 6, 7))
sketch13.addConstraint(Sketcher.Constraint("Equal", 7, 8))
sketch13.addConstraint(Sketcher.Constraint("Equal", 8, 9))
sketch13.addConstraint(Sketcher.Constraint("Equal", 9, 10))
sketch13.addConstraint(Sketcher.Constraint("Equal", 10, 11))
sketch13.addConstraint(Sketcher.Constraint("Equal", 11, 12))
sketch13.addConstraint(Sketcher.Constraint("Equal", 12, 13))
sketch13.addConstraint(Sketcher.Constraint("Equal", 13, 14))
sketch13.addConstraint(Sketcher.Constraint("Equal", 14, 15))
sketch13.addConstraint(Sketcher.Constraint("Equal", 15, 16))
sketch13.addConstraint(Sketcher.Constraint("Equal", 16, 17))
sketch13.addConstraint(Sketcher.Constraint("Equal", 17, 18))
sketch13.addConstraint(Sketcher.Constraint("Equal", 18, 19))
sketch13.addConstraint(Sketcher.Constraint("Equal", 19, 20))
sketch13.addConstraint(Sketcher.Constraint("Equal", 20, 21))
sketch13.addConstraint(Sketcher.Constraint("Equal", 21, 22))
sketch13.addConstraint(Sketcher.Constraint("Equal", 22, 23))
sketch13.addConstraint(Sketcher.Constraint("Equal", 23, 24))
sketch13.addConstraint(Sketcher.Constraint("Equal", 24, 25))
sketch13.addConstraint(Sketcher.Constraint("Equal", 25, 26))
sketch13.addConstraint(Sketcher.Constraint("Equal", 26, 27))
sketch13.addConstraint(Sketcher.Constraint("Horizontal", 0, 3, 1, 3))
sketch13.addConstraint(Sketcher.Constraint("Horizontal", 3, 3, 4, 3))
sketch13.addConstraint(Sketcher.Constraint("Horizontal", 1, 3, 5, 3))
sketch13.addConstraint(Sketcher.Constraint("Horizontal", 2, 3, 6, 3))
sketch13.addConstraint(Sketcher.Constraint("Horizontal", 4, 3, 7, 3))
sketch13.addConstraint(Sketcher.Constraint("Horizontal", 6, 3, 8, 3))
sketch13.addConstraint(Sketcher.Constraint("Horizontal", 5, 3, 9, 3))
sketch13.addConstraint(Sketcher.Constraint("Horizontal", 7, 3, 10, 3))
sketch13.addConstraint(Sketcher.Constraint("Horizontal", 13, 3, 15, 3))
sketch13.addConstraint(Sketcher.Constraint("Horizontal", 12, 3, 16, 3))
sketch13.addConstraint(Sketcher.Constraint("Horizontal", 11, 3, 17, 3))
sketch13.addConstraint(Sketcher.Constraint("Horizontal", 16, 3, 18, 3))
sketch13.addConstraint(Sketcher.Constraint("Horizontal", 15, 3, 19, 3))
sketch13.addConstraint(Sketcher.Constraint("Horizontal", 14, 3, 20, 3))
sketch13.addConstraint(Sketcher.Constraint("Horizontal", 17, 3, 21, 3))
sketch13.addConstraint(Sketcher.Constraint("Horizontal", 18, 3, 22, 3))
sketch13.addConstraint(Sketcher.Constraint("Horizontal", 19, 3, 23, 3))
sketch13.addConstraint(Sketcher.Constraint("Horizontal", 20, 3, 24, 3))
sketch13.addConstraint(Sketcher.Constraint("Horizontal", 8, 3, 25, 3))
sketch13.addConstraint(Sketcher.Constraint("Horizontal", 21, 3, 26, 3))
sketch13.addConstraint(Sketcher.Constraint("Horizontal", 24, 3, 27, 3))
sketch13.addConstraint(Sketcher.Constraint("Vertical", 1, 3, 3, 3))
sketch13.addConstraint(Sketcher.Constraint("Vertical", 0, 3, 4, 3))
sketch13.addConstraint(Sketcher.Constraint("Vertical", 5, 3, 7, 3))
sketch13.addConstraint(Sketcher.Constraint("Vertical", 9, 3, 10, 3))
sketch13.addConstraint(Sketcher.Constraint("Vertical", 8, 3, 11, 3))
sketch13.addConstraint(Sketcher.Constraint("Vertical", 10, 3, 12, 3))
sketch13.addConstraint(Sketcher.Constraint("Vertical", 12, 3, 13, 3))
sketch13.addConstraint(Sketcher.Constraint("Vertical", 11, 3, 14, 3))
sketch13.addConstraint(Sketcher.Constraint("Vertical", 7, 3, 15, 3))
sketch13.addConstraint(Sketcher.Constraint("Vertical", 15, 3, 16, 3))
sketch13.addConstraint(Sketcher.Constraint("Vertical", 6, 3, 17, 3))
sketch13.addConstraint(Sketcher.Constraint("Vertical", 3, 3, 18, 3))
sketch13.addConstraint(Sketcher.Constraint("Vertical", 18, 3, 19, 3))
sketch13.addConstraint(Sketcher.Constraint("Vertical", 17, 3, 20, 3))
sketch13.addConstraint(Sketcher.Constraint("Vertical", 2, 3, 21, 3))
sketch13.addConstraint(Sketcher.Constraint("Vertical", 4, 3, 22, 3))
sketch13.addConstraint(Sketcher.Constraint("Vertical", 22, 3, 23, 3))
sketch13.addConstraint(Sketcher.Constraint("Vertical", 21, 3, 24, 3))
sketch13.addConstraint(Sketcher.Constraint("Vertical", 25, 3, 26, 3))
sketch13.addConstraint(Sketcher.Constraint("Vertical", 26, 3, 27, 3))
sketch13.addConstraint(Sketcher.Constraint("Diameter", 0, 5.0))
sketch13.addConstraint(Sketcher.Constraint("DistanceX", -1, 1, 25, 3, 8.0))
sketch13.addConstraint(Sketcher.Constraint("DistanceY", 2, 3, -1, 1, 18.5))
sketch13.addConstraint(Sketcher.Constraint("DistanceY", 14, 3, -1, 1, 35.6))
sketch13.addConstraint(Sketcher.Constraint("DistanceY", 12, 3, 9, 3, 17.1))
sketch13.addConstraint(Sketcher.Constraint("DistanceY", 13, 3, 10, 3, 17.1))
sketch13.addConstraint(Sketcher.Constraint("DistanceX", -1, 1, 6, 3, 26.75))
sketch13.addConstraint(Sketcher.Constraint("DistanceY", 11, 3, -1, 1, 27.05))
sketch13.addConstraint(Sketcher.Constraint("DistanceY", 3, 3, 1, 3, 8.55))
sketch13.addConstraint(Sketcher.Constraint("DistanceX", 0, 3, 5, 3, 18.75))
sketch13.addConstraint(Sketcher.Constraint("DistanceX", 1, 3, 9, 3, 18.75))
sketch13.addConstraint(Sketcher.Constraint("DistanceY", 0, 3, -1, 1, 14.225))
sketch13.addConstraint(Sketcher.Constraint("DistanceX", -1, 1, 2, 3, 17.375))
sketch13.addConstraint(Sketcher.Constraint("DistanceX", -1, 1, 8, 3, 36.125))
sketch13.addConstraint(Sketcher.Constraint("DistanceX", 0, 3, 1, 3, 9.375))
sketch13.addConstraint(Sketcher.Constraint("DistanceX", -1, 1, 0, 3, 12.6875))
pocket4 = body.newObject("PartDesign::Pocket", "Pocket003")
pocket4.Profile = sketch13
pocket4.Length = 3

doc.recompute()
